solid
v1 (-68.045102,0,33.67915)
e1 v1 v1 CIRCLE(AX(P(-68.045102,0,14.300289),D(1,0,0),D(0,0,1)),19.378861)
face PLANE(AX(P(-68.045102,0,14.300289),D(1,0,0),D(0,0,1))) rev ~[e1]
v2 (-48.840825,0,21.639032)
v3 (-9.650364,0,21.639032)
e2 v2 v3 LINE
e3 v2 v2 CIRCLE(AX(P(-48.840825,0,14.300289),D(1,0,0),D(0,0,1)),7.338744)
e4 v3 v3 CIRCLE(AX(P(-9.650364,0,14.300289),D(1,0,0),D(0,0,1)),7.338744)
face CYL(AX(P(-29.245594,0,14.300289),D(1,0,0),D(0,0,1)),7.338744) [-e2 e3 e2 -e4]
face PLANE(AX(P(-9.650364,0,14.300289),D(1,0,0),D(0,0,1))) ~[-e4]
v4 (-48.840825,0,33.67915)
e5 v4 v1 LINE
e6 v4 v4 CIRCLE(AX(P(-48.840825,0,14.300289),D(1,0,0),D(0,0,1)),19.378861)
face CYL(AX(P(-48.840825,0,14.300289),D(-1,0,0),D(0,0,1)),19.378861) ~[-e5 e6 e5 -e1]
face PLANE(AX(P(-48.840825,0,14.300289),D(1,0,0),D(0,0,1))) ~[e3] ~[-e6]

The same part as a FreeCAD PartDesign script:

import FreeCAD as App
import Part
import Sketcher
Q = App.Units.Quantity


def add_polygon(sketch, points):
    """Adds a closed chain of lines whose ends are joined by coincident constraints."""
    first, n = sketch.GeometryCount, len(points)
    for a, b in zip(points, points[1:] + points[:1]):
        sketch.addGeometry(Part.LineSegment(App.Vector(*a, 0), App.Vector(*b, 0)), False)
    for i in range(n):
        sketch.addConstraint(Sketcher.Constraint("Coincident", first + i, 2, first + (i + 1) % n, 1))

doc = App.newDocument("Part")
params = doc.addObject("Spreadsheet::Sheet", "Params")
for row, (alias, value) in enumerate([
    ("revolution_angle", "360 deg"),
], start=1):
    params.set(f"A{row}", alias)
    params.set(f"B{row}", "=" + value)
    params.setAlias(f"B{row}", alias)

body = doc.addObject("PartDesign::Body", "Body")

sketch1 = body.newObject("Sketcher::SketchObject", "Sketch")
sketch1.AttachmentSupport = (doc.getObject("XZ_Plane"), [""])
sketch1.MapMode = "FlatFace"
add_polygon(sketch1, [(-48.840825, 33.67915), (-68.045102, 33.67915), (-68.045102, 14.300289), (-9.650364, 14.300289), (-9.650364, 21.639032), (-48.840825, 21.639032)])
sketch1.addGeometry(Part.LineSegment(App.Vector(-68.045102, 14.300289, 0), App.Vector(-9.650364, 14.300289, 0)), True)
sketch1.addConstraint(Sketcher.Constraint("Horizontal", 0))
sketch1.addConstraint(Sketcher.Constraint("Vertical", 1))
sketch1.addConstraint(Sketcher.Constraint("Horizontal", 2))
sketch1.addConstraint(Sketcher.Constraint("Vertical", 3))
sketch1.addConstraint(Sketcher.Constraint("Horizontal", 4))
sketch1.addConstraint(Sketcher.Constraint("Vertical", 5))
sketch1.addConstraint(Sketcher.Constraint("Horizontal", 6))
sketch1.addConstraint(Sketcher.Constraint("Coincident", 6, 1, 1, 2))
sketch1.addConstraint(Sketcher.Constraint("Vertical", 3, 2, 6, 2))
sketch1.addConstraint(Sketcher.Constraint("DistanceX", 2, 1, 2, 2, Q("58.394738 mm")))
sketch1.addConstraint(Sketcher.Constraint("DistanceX", 4, 2, 4, 1, Q("39.190461 mm")))
sketch1.addConstraint(Sketcher.Constraint("DistanceY", 1, 2, 1, 1, Q("19.378861 mm")))
sketch1.addConstraint(Sketcher.Constraint("DistanceY", 3, 1, 3, 2, Q("7.338744 mm")))
sketch1.addConstraint(Sketcher.Constraint("DistanceY", -1, 1, 0, 2, Q("33.67915 mm")))
sketch1.addConstraint(Sketcher.Constraint("DistanceX", 0, 2, -1, 1, Q("68.045102 mm")))
revolution = body.newObject("PartDesign::Revolution", "Revolution")
revolution.Profile = sketch1
revolution.ReferenceAxis = (sketch1, ["Axis0"])
revolution.setExpression("Angle", "Params.revolution_angle")

doc.recompute()
